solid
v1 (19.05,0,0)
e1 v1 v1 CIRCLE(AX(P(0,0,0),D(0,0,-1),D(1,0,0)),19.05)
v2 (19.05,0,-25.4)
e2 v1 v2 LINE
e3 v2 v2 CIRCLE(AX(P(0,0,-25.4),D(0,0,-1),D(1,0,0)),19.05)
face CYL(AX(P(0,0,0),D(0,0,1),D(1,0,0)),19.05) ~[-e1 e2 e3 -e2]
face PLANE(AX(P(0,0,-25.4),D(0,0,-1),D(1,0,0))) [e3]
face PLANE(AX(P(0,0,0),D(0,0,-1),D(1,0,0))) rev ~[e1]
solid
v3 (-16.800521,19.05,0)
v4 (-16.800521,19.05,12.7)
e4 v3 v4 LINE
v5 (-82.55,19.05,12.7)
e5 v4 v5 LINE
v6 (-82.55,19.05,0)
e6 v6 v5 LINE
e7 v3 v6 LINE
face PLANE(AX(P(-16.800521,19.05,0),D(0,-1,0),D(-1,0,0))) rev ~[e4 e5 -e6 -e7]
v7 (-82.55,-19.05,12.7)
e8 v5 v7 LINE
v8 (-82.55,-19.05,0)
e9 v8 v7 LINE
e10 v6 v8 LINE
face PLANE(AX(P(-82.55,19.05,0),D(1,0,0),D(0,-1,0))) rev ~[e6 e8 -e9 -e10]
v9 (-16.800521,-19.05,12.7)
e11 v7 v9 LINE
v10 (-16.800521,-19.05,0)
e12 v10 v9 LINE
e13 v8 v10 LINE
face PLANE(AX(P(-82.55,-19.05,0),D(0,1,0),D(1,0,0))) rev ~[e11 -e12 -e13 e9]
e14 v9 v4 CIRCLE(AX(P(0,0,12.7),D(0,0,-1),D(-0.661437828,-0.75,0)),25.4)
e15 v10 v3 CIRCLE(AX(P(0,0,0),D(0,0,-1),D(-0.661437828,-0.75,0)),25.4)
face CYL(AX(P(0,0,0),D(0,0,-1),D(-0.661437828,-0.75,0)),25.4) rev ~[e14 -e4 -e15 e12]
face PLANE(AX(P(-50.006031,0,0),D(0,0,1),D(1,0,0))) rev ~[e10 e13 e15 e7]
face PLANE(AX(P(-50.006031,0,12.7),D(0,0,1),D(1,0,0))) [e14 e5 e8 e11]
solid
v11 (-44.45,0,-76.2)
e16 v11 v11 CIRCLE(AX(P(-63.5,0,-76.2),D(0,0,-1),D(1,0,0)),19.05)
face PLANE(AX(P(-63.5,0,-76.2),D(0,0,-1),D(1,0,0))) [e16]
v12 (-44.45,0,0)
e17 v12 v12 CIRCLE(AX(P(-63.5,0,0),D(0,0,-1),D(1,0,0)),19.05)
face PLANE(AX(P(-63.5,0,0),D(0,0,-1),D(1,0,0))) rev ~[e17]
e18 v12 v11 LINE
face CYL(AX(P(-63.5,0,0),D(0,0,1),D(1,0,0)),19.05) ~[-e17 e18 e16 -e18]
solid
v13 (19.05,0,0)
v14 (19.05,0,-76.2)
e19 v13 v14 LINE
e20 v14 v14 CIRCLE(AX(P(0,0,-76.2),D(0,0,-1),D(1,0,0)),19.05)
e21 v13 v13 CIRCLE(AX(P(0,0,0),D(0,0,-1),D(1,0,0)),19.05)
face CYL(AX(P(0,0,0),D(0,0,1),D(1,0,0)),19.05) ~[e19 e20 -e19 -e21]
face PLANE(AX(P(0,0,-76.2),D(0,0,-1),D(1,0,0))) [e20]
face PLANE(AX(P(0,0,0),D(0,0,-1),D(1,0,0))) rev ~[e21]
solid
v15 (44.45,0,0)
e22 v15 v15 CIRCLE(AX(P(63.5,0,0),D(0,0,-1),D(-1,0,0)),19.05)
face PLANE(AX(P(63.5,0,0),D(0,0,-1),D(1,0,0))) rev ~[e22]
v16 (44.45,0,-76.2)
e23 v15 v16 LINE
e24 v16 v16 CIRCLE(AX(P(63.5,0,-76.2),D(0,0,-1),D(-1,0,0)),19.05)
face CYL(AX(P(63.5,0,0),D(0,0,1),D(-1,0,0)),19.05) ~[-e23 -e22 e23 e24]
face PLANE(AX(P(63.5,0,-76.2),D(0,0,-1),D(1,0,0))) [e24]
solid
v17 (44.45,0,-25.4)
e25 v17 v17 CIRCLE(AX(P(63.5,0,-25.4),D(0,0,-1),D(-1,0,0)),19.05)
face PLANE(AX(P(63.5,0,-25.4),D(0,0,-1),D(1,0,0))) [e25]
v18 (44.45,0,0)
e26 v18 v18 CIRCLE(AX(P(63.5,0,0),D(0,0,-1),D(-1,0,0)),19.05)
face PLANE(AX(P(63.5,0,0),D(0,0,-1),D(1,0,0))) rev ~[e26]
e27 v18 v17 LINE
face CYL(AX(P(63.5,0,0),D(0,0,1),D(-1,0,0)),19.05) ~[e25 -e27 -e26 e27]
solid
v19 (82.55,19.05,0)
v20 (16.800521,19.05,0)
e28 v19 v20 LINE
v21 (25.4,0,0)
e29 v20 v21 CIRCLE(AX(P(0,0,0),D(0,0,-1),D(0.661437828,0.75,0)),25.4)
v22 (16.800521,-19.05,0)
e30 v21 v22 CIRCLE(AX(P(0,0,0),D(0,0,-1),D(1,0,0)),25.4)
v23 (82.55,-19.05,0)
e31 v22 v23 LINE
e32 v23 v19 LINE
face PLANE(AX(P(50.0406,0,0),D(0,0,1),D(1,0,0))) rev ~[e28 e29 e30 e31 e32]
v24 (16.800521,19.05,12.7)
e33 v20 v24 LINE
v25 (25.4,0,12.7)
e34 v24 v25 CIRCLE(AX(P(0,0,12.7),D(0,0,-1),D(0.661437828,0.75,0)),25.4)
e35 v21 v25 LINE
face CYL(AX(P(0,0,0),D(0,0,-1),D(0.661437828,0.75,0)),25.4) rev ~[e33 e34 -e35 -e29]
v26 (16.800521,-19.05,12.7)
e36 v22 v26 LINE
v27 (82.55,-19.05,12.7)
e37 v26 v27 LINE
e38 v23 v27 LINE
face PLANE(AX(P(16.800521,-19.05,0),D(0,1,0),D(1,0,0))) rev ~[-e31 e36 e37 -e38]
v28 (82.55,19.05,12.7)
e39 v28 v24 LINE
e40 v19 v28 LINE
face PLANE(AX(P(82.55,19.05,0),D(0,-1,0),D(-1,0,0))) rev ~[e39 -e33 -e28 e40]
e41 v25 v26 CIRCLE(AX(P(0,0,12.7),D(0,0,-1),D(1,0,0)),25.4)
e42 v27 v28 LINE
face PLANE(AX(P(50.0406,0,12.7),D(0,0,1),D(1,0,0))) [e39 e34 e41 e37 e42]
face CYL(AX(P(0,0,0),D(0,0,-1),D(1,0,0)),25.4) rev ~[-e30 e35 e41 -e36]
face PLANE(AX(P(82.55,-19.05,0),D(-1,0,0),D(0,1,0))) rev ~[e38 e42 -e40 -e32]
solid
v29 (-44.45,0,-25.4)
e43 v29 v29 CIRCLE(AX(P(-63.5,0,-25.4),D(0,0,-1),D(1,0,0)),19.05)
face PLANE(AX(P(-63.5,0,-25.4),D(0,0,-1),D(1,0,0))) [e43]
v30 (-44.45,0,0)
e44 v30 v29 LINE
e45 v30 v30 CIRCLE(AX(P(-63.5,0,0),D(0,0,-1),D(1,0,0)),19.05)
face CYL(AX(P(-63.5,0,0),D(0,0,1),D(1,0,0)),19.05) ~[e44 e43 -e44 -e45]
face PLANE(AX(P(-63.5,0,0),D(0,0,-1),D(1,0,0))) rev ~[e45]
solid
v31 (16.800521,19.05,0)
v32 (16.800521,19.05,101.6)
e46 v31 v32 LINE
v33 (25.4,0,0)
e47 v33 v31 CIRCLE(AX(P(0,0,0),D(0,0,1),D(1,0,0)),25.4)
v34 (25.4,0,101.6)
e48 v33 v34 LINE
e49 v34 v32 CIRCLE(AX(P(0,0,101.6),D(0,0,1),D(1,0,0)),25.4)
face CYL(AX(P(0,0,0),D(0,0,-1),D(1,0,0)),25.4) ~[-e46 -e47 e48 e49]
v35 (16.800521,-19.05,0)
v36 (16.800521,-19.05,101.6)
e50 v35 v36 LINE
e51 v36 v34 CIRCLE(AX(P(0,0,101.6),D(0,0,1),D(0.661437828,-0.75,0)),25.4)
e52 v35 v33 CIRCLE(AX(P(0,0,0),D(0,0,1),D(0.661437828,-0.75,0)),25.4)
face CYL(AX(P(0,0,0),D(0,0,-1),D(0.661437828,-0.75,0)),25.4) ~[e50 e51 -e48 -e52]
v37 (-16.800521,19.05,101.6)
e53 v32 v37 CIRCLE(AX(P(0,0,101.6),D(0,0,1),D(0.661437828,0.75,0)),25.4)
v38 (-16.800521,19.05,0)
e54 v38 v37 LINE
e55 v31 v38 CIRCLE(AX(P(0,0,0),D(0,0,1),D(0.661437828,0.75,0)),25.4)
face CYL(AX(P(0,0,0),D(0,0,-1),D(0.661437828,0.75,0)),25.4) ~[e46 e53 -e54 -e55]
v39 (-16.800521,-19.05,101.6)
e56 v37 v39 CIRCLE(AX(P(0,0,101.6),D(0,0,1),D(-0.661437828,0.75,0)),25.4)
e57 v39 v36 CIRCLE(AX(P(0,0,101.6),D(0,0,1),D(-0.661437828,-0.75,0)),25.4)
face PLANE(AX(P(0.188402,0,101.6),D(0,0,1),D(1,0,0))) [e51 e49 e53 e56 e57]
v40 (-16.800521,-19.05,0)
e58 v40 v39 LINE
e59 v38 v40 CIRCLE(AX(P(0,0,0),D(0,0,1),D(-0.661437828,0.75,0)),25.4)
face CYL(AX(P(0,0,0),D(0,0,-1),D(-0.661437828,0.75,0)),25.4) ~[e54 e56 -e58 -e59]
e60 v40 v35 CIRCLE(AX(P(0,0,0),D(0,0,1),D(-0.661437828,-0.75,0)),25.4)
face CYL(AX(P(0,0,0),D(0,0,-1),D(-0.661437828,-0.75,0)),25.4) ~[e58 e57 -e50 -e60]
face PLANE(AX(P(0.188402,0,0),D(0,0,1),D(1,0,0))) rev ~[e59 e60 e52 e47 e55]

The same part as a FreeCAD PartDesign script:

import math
import FreeCAD as App
import Part
import Sketcher
from FreeCAD import Vector
Q = App.Units.Quantity

doc = App.newDocument("Part")
params = doc.addObject("Spreadsheet::Sheet", "Params")
for row, (alias, value) in enumerate([
    ("sketch1_radius", "1 in"),
    ("sketch1_height", "1.5 in"),
    ("pad1_length", "0.5 in"),
    ("sketch2_radius", "1 in"),
    ("sketch2_height", "1.5 in"),
    ("pad2_length", "0.5 in"),
    ("sketch3_radius", "1 in"),
    ("pad3_length", "4 in"),
    ("sketch4_diameter", "1.5 in"),
    ("pad4_length", "1 in"),
    ("sketch5_diameter", "1.5 in"),
    ("pad5_length", "1 in"),
    ("sketch6_diameter", "1.5 in"),
    ("pad6_length", "1 in"),
    ("sketch7_diameter", "1.5 in"),
    ("pad7_length", "3 in"),
    ("sketch8_diameter", "1.5 in"),
    ("pad8_length", "3 in"),
    ("sketch9_diameter", "1.5 in"),
    ("pad9_length", "3 in"),
], start=1):
    params.set(f"A{row}", alias)
    params.set(f"B{row}", "=" + value)
    params.setAlias(f"B{row}", alias)

body = doc.addObject("PartDesign::Body", "Body")

sketch1 = doc.addObject("Sketcher::SketchObject", "Sketch")
body.addObject(sketch1)
sketch1.AttachmentSupport = (doc.XY_Plane, [""])
sketch1.MapMode = "FlatFace"
sketch1.addGeometry([
    Part.ArcOfCircle(Part.Circle(Vector(0, 0, 0), Vector(0, 0, 1), 25), math.radians(131), math.radians(229)),
    Part.LineSegment(Vector(-17, 19, 0), Vector(-83, 19, 0)),
    Part.LineSegment(Vector(-83, 19, 0), Vector(-83, -19, 0)),
    Part.LineSegment(Vector(-83, -19, 0), Vector(-17, -19, 0)),
], False)
sketch1.addConstraint([
    Sketcher.Constraint("Coincident", 0, 1, 1, 1),
    Sketcher.Constraint("Coincident", 1, 2, 2, 1),
    Sketcher.Constraint("Coincident", 2, 2, 3, 1),
    Sketcher.Constraint("Coincident", 3, 2, 0, 2),
    Sketcher.Constraint("Horizontal", 1),
    Sketcher.Constraint("Vertical", 2),
    Sketcher.Constraint("Horizontal", 3),
    Sketcher.Constraint("Coincident", 0, 3, -1, 1),
    Sketcher.Constraint("Vertical", 0, 1, 3, 2),
    Sketcher.Constraint("Radius", 0, Q("1 in")),
    Sketcher.Constraint("DistanceY", 2, 2, 2, 1, Q("1.5 in")),
    Sketcher.Constraint("DistanceX", 1, 2, -1, 1, Q("3.25 in")),
])
sketch1.setExpression("Constraints[9]", "Params.sketch1_radius")
sketch1.setExpression("Constraints[10]", "Params.sketch1_height")
pad1 = doc.addObject("PartDesign::Pad", "Pad")
body.addObject(pad1)
pad1.Profile = sketch1
pad1.setExpression("Length", "Params.pad1_length")
body2 = doc.addObject("PartDesign::Body", "Body001")

sketch2 = doc.addObject("Sketcher::SketchObject", "Sketch001")
body2.addObject(sketch2)
sketch2.AttachmentSupport = (doc.getObject("XY_Plane001"), [""])
sketch2.MapMode = "FlatFace"
sketch2.addGeometry([
    Part.ArcOfCircle(Part.Circle(Vector(0, 0, 0), Vector(0, 0, 1), 25), math.radians(0), math.radians(49)),
    Part.ArcOfCircle(Part.Circle(Vector(0, 0, 0), Vector(0, 0, 1), 25), math.radians(-49), math.radians(0)),
    Part.LineSegment(Vector(17, -19, 0), Vector(83, -19, 0)),
    Part.LineSegment(Vector(83, -19, 0), Vector(83, 19, 0)),
    Part.LineSegment(Vector(83, 19, 0), Vector(17, 19, 0)),
], False)
sketch2.addConstraint([
    Sketcher.Constraint("Tangent", 0, 1, 1, 2),
    Sketcher.Constraint("Coincident", 1, 1, 2, 1),
    Sketcher.Constraint("Coincident", 2, 2, 3, 1),
    Sketcher.Constraint("Coincident", 3, 2, 4, 1),
    Sketcher.Constraint("Coincident", 4, 2, 0, 2),
    Sketcher.Constraint("Horizontal", 2),
    Sketcher.Constraint("Vertical", 3),
    Sketcher.Constraint("Horizontal", 4),
    Sketcher.Constraint("Coincident", 0, 3, -1, 1),
    Sketcher.Constraint("Equal", 0, 1),
    Sketcher.Constraint("PointOnObject", 0, 1, -1),
    Sketcher.Constraint("Vertical", 1, 1, 4, 2),
    Sketcher.Constraint("Radius", 0, Q("1 in")),
    Sketcher.Constraint("DistanceY", 3, 1, 3, 2, Q("1.5 in")),
    Sketcher.Constraint("DistanceX", -1, 1, 2, 2, Q("3.25 in")),
])
sketch2.setExpression("Constraints[12]", "Params.sketch2_radius")
sketch2.setExpression("Constraints[13]", "Params.sketch2_height")
pad2 = doc.addObject("PartDesign::Pad", "Pad001")
body2.addObject(pad2)
pad2.Profile = sketch2
pad2.setExpression("Length", "Params.pad2_length")
body3 = doc.addObject("PartDesign::Body", "Body002")

sketch3 = doc.addObject("Sketcher::SketchObject", "Sketch002")
body3.addObject(sketch3)
sketch3.AttachmentSupport = (doc.getObject("XY_Plane002"), [""])
sketch3.MapMode = "FlatFace"
sketch3.addGeometry([
    Part.ArcOfCircle(Part.Circle(Vector(0, 0, 0), Vector(0, 0, 1), 25), math.radians(-49), math.radians(0)),
    Part.ArcOfCircle(Part.Circle(Vector(0, 0, 0), Vector(0, 0, 1), 25), math.radians(0), math.radians(49)),
    Part.ArcOfCircle(Part.Circle(Vector(0, 0, 0), Vector(0, 0, 1), 25), math.radians(49), math.radians(131)),
    Part.ArcOfCircle(Part.Circle(Vector(0, 0, 0), Vector(0, 0, 1), 25), math.radians(131), math.radians(229)),
    Part.ArcOfCircle(Part.Circle(Vector(0, 0, 0), Vector(0, 0, 1), 25), math.radians(-131), math.radians(-49)),
], False)
sketch3.addConstraint([
    Sketcher.Constraint("Tangent", 0, 2, 1, 1),
    Sketcher.Constraint("Tangent", 1, 2, 2, 1),
    Sketcher.Constraint("Tangent", 2, 2, 3, 1),
    Sketcher.Constraint("Tangent", 3, 2, 4, 1),
    Sketcher.Constraint("Tangent", 4, 2, 0, 1),
    Sketcher.Constraint("Coincident", 0, 3, -1, 1),
    Sketcher.Constraint("Coincident", 2, 3, -1, 1),
    Sketcher.Constraint("PointOnObject", 0, 2, -1),
    Sketcher.Constraint("Horizontal", 1, 2, 2, 2),
    Sketcher.Constraint("Horizontal", 3, 2, 4, 2),
    Sketcher.Constraint("Vertical", 2, 2, 3, 2),
    Sketcher.Constraint("Radius", 0, Q("1 in")),
    Sketcher.Constraint("DistanceY", -1, 1, 1, 2, Q("0.75 in")),
])
sketch3.setExpression("Constraints[11]", "Params.sketch3_radius")
pad3 = doc.addObject("PartDesign::Pad", "Pad002")
body3.addObject(pad3)
pad3.Profile = sketch3
pad3.setExpression("Length", "Params.pad3_length")
body4 = doc.addObject("PartDesign::Body", "Body003")

sketch4 = doc.addObject("Sketcher::SketchObject", "Sketch003")
body4.addObject(sketch4)
sketch4.AttachmentSupport = (doc.getObject("XY_Plane003"), [""])
sketch4.MapMode = "FlatFace"
sketch4.addGeometry(Part.Circle(Vector(0, 0, 0), Vector(0, 0, 1), 19), False)
sketch4.addConstraint([
    Sketcher.Constraint("Coincident", 0, 3, -1, 1),
    Sketcher.Constraint("Diameter", 0, Q("1.5 in")),
])
sketch4.setExpression("Constraints[1]", "Params.sketch4_diameter")
pad4 = doc.addObject("PartDesign::Pad", "Pad003")
body4.addObject(pad4)
pad4.Profile = sketch4
pad4.setExpression("Length", "Params.pad4_length")
pad4.Reversed = True
body5 = doc.addObject("PartDesign::Body", "Body004")

sketch5 = doc.addObject("Sketcher::SketchObject", "Sketch004")
body5.addObject(sketch5)
sketch5.AttachmentSupport = (doc.getObject("XY_Plane004"), [""])
sketch5.MapMode = "FlatFace"
sketch5.addGeometry(Part.Circle(Vector(-64, 0, 0), Vector(0, 0, 1), 19), False)
sketch5.addConstraint([
    Sketcher.Constraint("PointOnObject", 0, 3, -1),
    Sketcher.Constraint("Diameter", 0, Q("1.5 in")),
    Sketcher.Constraint("DistanceX", 0, 3, -1, 1, Q("2.5 in")),
])
sketch5.setExpression("Constraints[1]", "Params.sketch5_diameter")
pad5 = doc.addObject("PartDesign::Pad", "Pad004")
body5.addObject(pad5)
pad5.Profile = sketch5
pad5.setExpression("Length", "Params.pad5_length")
pad5.Reversed = True
body6 = doc.addObject("PartDesign::Body", "Body005")

sketch6 = doc.addObject("Sketcher::SketchObject", "Sketch005")
body6.addObject(sketch6)
sketch6.AttachmentSupport = (doc.getObject("XY_Plane005"), [""])
sketch6.MapMode = "FlatFace"
sketch6.addGeometry(Part.Circle(Vector(64, 0, 0), Vector(0, 0, 1), 19), False)
sketch6.addConstraint([
    Sketcher.Constraint("PointOnObject", 0, 3, -1),
    Sketcher.Constraint("Diameter", 0, Q("1.5 in")),
    Sketcher.Constraint("DistanceX", -1, 1, 0, 3, Q("2.5 in")),
])
sketch6.setExpression("Constraints[1]", "Params.sketch6_diameter")
pad6 = doc.addObject("PartDesign::Pad", "Pad005")
body6.addObject(pad6)
pad6.Profile = sketch6
pad6.setExpression("Length", "Params.pad6_length")
pad6.Reversed = True
body7 = doc.addObject("PartDesign::Body", "Body006")

sketch7 = doc.addObject("Sketcher::SketchObject", "Sketch006")
body7.addObject(sketch7)
sketch7.AttachmentSupport = (doc.getObject("XY_Plane006"), [""])
sketch7.MapMode = "FlatFace"
sketch7.addGeometry(Part.Circle(Vector(0, 0, 0), Vector(0, 0, 1), 19), False)
sketch7.addConstraint([
    Sketcher.Constraint("Coincident", 0, 3, -1, 1),
    Sketcher.Constraint("Diameter", 0, Q("1.5 in")),
])
sketch7.setExpression("Constraints[1]", "Params.sketch7_diameter")
pad7 = doc.addObject("PartDesign::Pad", "Pad006")
body7.addObject(pad7)
pad7.Profile = sketch7
pad7.setExpression("Length", "Params.pad7_length")
pad7.Reversed = True
body8 = doc.addObject("PartDesign::Body", "Body007")

sketch8 = doc.addObject("Sketcher::SketchObject", "Sketch007")
body8.addObject(sketch8)
sketch8.AttachmentSupport = (doc.getObject("XY_Plane007"), [""])
sketch8.MapMode = "FlatFace"
sketch8.addGeometry(Part.Circle(Vector(-64, 0, 0), Vector(0, 0, 1), 19), False)
sketch8.addConstraint([
    Sketcher.Constraint("PointOnObject", 0, 3, -1),
    Sketcher.Constraint("Diameter", 0, Q("1.5 in")),
    Sketcher.Constraint("DistanceX", 0, 3, -1, 1, Q("2.5 in")),
])
sketch8.setExpression("Constraints[1]", "Params.sketch8_diameter")
pad8 = doc.addObject("PartDesign::Pad", "Pad007")
body8.addObject(pad8)
pad8.Profile = sketch8
pad8.setExpression("Length", "Params.pad8_length")
pad8.Reversed = True
body9 = doc.addObject("PartDesign::Body", "Body008")

sketch9 = doc.addObject("Sketcher::SketchObject", "Sketch008")
body9.addObject(sketch9)
sketch9.AttachmentSupport = (doc.getObject("XY_Plane008"), [""])
sketch9.MapMode = "FlatFace"
sketch9.addGeometry(Part.Circle(Vector(64, 0, 0), Vector(0, 0, 1), 19), False)
sketch9.addConstraint([
    Sketcher.Constraint("PointOnObject", 0, 3, -1),
    Sketcher.Constraint("Diameter", 0, Q("1.5 in")),
    Sketcher.Constraint("DistanceX", -1, 1, 0, 3, Q("2.5 in")),
])
sketch9.setExpression("Constraints[1]", "Params.sketch9_diameter")
pad9 = doc.addObject("PartDesign::Pad", "Pad008")
body9.addObject(pad9)
pad9.Profile = sketch9
pad9.setExpression("Length", "Params.pad9_length")
pad9.Reversed = True

doc.recompute()
